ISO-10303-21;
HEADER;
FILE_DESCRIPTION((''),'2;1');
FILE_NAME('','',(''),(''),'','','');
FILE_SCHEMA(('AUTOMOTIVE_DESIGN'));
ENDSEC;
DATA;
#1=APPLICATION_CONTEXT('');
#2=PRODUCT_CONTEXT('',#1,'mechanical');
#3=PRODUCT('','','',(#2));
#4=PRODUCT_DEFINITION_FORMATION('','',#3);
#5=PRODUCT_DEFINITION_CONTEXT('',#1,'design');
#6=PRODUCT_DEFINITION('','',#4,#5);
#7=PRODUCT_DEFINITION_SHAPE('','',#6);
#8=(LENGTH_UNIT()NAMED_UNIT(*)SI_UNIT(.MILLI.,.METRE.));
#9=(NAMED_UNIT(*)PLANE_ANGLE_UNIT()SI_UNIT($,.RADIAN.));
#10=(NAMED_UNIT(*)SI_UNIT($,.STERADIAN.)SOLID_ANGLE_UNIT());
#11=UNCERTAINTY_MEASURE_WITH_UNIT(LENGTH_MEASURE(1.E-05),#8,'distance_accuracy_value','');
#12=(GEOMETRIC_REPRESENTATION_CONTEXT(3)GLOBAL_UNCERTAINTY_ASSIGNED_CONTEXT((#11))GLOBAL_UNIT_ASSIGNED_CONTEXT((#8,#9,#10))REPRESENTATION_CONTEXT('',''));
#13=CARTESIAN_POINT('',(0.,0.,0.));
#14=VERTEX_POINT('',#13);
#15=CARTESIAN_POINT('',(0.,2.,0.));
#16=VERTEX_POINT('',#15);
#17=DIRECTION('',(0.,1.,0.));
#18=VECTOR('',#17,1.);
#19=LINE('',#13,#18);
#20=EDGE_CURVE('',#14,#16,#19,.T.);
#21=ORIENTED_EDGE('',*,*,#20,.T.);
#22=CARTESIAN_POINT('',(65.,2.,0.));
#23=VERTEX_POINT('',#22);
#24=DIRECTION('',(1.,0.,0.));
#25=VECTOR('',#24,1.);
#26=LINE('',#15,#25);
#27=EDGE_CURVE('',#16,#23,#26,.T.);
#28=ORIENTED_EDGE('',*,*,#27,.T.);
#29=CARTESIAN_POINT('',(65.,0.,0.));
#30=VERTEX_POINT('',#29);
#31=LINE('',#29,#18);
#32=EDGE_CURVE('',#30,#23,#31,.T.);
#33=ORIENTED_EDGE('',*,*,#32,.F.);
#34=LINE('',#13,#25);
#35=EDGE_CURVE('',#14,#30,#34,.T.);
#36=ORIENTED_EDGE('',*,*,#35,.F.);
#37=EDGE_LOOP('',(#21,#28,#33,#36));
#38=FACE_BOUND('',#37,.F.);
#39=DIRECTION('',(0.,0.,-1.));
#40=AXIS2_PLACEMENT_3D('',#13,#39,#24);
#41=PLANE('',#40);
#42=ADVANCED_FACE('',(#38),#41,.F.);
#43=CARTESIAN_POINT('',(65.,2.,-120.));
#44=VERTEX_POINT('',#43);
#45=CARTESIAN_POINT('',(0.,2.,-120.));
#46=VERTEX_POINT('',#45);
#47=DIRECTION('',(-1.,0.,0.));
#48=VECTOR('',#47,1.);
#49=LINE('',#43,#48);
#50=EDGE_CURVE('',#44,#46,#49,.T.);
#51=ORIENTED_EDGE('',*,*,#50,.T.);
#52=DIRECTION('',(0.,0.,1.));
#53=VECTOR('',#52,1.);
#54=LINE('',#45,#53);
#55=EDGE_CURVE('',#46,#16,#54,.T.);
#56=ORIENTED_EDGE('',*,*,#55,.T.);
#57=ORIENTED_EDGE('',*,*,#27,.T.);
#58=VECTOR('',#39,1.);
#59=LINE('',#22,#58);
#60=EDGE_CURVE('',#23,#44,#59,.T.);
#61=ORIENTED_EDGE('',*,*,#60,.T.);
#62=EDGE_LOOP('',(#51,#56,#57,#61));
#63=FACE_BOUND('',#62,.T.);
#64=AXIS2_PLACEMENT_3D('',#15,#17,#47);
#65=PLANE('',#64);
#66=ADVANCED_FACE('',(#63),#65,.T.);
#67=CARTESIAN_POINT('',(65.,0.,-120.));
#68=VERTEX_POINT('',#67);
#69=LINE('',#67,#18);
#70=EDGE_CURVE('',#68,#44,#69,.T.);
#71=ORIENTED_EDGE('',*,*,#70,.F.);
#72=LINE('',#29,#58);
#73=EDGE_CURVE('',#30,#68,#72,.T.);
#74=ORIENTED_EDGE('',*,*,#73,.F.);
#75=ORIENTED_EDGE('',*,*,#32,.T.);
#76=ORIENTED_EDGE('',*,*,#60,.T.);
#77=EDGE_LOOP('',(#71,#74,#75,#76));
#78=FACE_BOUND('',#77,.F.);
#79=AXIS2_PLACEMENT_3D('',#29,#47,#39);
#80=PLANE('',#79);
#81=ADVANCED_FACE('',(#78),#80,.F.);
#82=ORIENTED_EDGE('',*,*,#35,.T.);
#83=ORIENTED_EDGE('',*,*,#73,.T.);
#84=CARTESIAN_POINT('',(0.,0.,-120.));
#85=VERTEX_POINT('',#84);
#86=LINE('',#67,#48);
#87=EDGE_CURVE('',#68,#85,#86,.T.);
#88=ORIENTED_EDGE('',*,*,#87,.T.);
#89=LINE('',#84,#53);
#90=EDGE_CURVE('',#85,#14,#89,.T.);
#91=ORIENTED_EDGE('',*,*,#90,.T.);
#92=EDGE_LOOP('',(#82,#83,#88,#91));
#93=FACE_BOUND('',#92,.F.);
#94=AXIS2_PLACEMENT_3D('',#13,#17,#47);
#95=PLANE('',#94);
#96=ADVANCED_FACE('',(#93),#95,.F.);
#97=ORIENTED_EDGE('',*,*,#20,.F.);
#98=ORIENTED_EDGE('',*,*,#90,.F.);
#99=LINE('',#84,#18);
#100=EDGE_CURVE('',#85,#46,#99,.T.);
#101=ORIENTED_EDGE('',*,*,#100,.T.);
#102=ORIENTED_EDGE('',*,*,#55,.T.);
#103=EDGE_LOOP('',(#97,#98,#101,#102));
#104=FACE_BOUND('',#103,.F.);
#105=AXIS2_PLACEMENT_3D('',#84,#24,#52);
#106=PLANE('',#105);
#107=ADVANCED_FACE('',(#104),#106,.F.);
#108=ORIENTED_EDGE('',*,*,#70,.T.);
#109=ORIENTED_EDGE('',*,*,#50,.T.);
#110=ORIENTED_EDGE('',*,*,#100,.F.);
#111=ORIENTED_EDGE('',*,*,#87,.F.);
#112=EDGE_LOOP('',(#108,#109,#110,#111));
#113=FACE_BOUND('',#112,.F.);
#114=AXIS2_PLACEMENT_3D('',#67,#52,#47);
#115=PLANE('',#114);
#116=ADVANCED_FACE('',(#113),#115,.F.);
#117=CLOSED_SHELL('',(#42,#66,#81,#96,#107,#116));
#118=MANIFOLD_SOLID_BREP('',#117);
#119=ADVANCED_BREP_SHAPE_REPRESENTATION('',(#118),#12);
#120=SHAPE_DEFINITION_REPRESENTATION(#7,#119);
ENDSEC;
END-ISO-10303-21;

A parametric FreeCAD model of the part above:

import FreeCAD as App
import Part
import Sketcher

V = App.Vector
Q = App.Units.Quantity


def add_polygon(sketch, points):
    """Adds a closed chain of lines whose ends are joined by coincident constraints."""
    first, n = sketch.GeometryCount, len(points)
    for a, b in zip(points, points[1:] + points[:1]):
        sketch.addGeometry(Part.LineSegment(App.Vector(*a, 0), App.Vector(*b, 0)), False)
    for i in range(n):
        sketch.addConstraint(Sketcher.Constraint("Coincident", first + i, 2, first + (i + 1) % n, 1))

doc = App.newDocument("Part")
body = doc.addObject("PartDesign::Body", "Body")

# Sketch on XZ plane
sketch1 = doc.addObject("Sketcher::SketchObject", "Sketch")
body.addObject(sketch1)
sketch1.AttachmentSupport = (doc.XZ_Plane, [""])
sketch1.MapMode = "FlatFace"
add_polygon(sketch1, [(0, -120), (0, 0), (65, 0), (65, -120)])  # lines 0-3
sketch1.addConstraint([
    Sketcher.Constraint("Vertical", 0),
    Sketcher.Constraint("Horizontal", 1),
    Sketcher.Constraint("Vertical", 2),
    Sketcher.Constraint("Horizontal", 3),
    Sketcher.Constraint("Coincident", 0, 2, -1, 1),
    Sketcher.Constraint("DistanceX", 1, 1, 1, 2, Q("65 mm")),
    Sketcher.Constraint("DistanceY", 0, 1, 0, 2, Q("120 mm")),
])
pad1 = doc.addObject("PartDesign::Pad", "Pad")
body.addObject(pad1)
pad1.Profile = sketch1
pad1.Length = 2
pad1.Reversed = True

doc.recompute()
